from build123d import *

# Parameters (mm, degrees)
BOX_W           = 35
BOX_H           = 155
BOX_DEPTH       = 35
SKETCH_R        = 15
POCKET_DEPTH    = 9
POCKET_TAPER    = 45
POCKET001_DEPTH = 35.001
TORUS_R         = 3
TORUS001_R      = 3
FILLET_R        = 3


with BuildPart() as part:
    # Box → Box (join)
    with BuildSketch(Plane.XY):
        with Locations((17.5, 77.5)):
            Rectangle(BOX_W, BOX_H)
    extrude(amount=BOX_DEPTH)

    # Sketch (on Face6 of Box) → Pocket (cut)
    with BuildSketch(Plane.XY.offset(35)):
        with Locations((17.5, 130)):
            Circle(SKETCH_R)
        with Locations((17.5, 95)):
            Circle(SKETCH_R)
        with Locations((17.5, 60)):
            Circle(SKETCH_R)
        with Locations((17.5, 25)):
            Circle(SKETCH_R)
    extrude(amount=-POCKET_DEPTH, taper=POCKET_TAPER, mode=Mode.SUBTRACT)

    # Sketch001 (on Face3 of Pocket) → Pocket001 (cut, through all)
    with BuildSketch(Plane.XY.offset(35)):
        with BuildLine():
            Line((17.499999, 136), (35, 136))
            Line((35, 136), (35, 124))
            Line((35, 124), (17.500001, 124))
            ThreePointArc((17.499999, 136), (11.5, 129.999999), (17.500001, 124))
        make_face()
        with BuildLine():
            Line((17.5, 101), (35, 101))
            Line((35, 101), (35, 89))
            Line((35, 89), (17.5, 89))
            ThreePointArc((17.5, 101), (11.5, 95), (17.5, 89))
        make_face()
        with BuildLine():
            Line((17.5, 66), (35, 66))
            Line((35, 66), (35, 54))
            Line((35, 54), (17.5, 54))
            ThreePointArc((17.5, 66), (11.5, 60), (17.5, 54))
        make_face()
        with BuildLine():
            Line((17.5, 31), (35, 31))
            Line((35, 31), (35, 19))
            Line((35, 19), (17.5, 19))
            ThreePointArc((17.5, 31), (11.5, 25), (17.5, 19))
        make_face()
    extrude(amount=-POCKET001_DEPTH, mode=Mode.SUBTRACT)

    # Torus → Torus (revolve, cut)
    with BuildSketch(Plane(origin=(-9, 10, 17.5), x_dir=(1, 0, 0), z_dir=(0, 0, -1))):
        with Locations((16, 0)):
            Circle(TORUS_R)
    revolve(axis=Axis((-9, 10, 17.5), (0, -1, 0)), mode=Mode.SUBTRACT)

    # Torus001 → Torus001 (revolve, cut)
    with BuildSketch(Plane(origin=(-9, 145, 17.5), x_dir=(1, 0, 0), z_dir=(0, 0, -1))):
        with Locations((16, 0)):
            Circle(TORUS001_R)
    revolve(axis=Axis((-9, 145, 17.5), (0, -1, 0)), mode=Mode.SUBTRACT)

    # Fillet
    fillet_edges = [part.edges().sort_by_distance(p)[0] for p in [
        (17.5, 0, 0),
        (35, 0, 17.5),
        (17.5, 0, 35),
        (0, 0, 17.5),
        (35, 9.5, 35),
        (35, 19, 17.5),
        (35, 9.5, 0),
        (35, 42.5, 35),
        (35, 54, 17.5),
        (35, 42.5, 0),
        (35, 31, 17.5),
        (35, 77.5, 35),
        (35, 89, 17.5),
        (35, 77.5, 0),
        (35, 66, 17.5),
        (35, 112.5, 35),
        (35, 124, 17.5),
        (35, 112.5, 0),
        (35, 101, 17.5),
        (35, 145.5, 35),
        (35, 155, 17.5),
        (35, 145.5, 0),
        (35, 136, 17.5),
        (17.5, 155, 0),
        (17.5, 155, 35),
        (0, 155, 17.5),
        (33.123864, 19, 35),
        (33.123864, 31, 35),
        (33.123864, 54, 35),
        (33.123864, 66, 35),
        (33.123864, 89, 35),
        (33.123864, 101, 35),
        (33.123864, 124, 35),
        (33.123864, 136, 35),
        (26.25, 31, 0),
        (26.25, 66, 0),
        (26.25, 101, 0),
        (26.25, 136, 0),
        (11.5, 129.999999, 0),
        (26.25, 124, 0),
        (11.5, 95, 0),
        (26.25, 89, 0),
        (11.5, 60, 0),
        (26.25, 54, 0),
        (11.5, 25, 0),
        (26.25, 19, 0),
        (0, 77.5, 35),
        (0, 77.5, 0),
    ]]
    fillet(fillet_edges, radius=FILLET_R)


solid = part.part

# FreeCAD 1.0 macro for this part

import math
import FreeCAD as App
import Part
import Sketcher


def edges_at(feature, points):
    """Names of the edges that pass closest to the given points."""
    edges = feature.Shape.Edges
    near = lambda p: min(range(len(edges)), key=lambda i: edges[i].distToShape(Part.Vertex(*p))[0])
    return sorted({f"Edge{near(p) + 1}" for p in points})


def add_polygon(sketch, points):
    """Adds a closed chain of lines whose ends are joined by coincident constraints."""
    first, n = sketch.GeometryCount, len(points)
    for a, b in zip(points, points[1:] + points[:1]):
        sketch.addGeometry(Part.LineSegment(App.Vector(*a, 0), App.Vector(*b, 0)), False)
    for i in range(n):
        sketch.addConstraint(Sketcher.Constraint("Coincident", first + i, 2, first + (i + 1) % n, 1))

doc = App.newDocument("Part")
body = doc.addObject("PartDesign::Body", "Body")

# Sketch on XY plane
sketch1 = body.newObject("Sketcher::SketchObject", "Sketch")
sketch1.AttachmentSupport = (doc.getObject("XY_Plane"), [""])
sketch1.MapMode = "FlatFace"
add_polygon(sketch1, [(0, 155), (0, 0), (35, 0), (35, 155)])  # lines 0-3
sketch1.addConstraint([
    Sketcher.Constraint("Vertical", 0),
    Sketcher.Constraint("Horizontal", 1),
    Sketcher.Constraint("Vertical", 2),
    Sketcher.Constraint("Horizontal", 3),
    Sketcher.Constraint("Coincident", 0, 2, -1, 1),
    Sketcher.Constraint("DistanceX", 1, 1, 1, 2, 35.0),
    Sketcher.Constraint("DistanceY", 0, 2, 0, 1, 155.0),
])
pad1 = body.newObject("PartDesign::Pad", "Pad")
pad1.Profile = sketch1
pad1.Length = 35

# Sketch on XY plane
sketch2 = body.newObject("Sketcher::SketchObject", "Sketch001")
sketch2.AttachmentSupport = (doc.getObject("XY_Plane"), [""])
sketch2.MapMode = "FlatFace"
sketch2.AttachmentOffset = App.Placement(App.Vector(0, 0, 35), App.Rotation())
sketch2.addGeometry([
    Part.Circle(App.Vector(17.5, 130, 0), App.Vector(0, 0, 1), 15),
    Part.Circle(App.Vector(17.5, 95, 0), App.Vector(0, 0, 1), 15),
    Part.Circle(App.Vector(17.5, 60, 0), App.Vector(0, 0, 1), 15),
    Part.Circle(App.Vector(17.5, 25, 0), App.Vector(0, 0, 1), 15),
], False)
sketch2.addConstraint([
    Sketcher.Constraint("Equal", 0, 1),
    Sketcher.Constraint("Equal", 1, 2),
    Sketcher.Constraint("Equal", 2, 3),
    Sketcher.Constraint("Vertical", 0, 3, 1, 3),
    Sketcher.Constraint("Vertical", 1, 3, 2, 3),
    Sketcher.Constraint("Vertical", 2, 3, 3, 3),
    Sketcher.Constraint("Diameter", 0, 30.0),
    Sketcher.Constraint("DistanceY", -1, 1, 0, 3, 130.0),
    Sketcher.Constraint("DistanceY", -1, 1, 1, 3, 95.0),
    Sketcher.Constraint("DistanceY", -1, 1, 2, 3, 60.0),
    Sketcher.Constraint("DistanceY", -1, 1, 3, 3, 25.0),
    Sketcher.Constraint("DistanceX", -1, 1, 0, 3, 17.5),
])
pocket1 = body.newObject("PartDesign::Pocket", "Pocket")
pocket1.Profile = sketch2
pocket1.Length = 9
pocket1.TaperAngle = -45

# Sketch on XY plane
sketch3 = body.newObject("Sketcher::SketchObject", "Sketch002")
sketch3.AttachmentSupport = (doc.getObject("XY_Plane"), [""])
sketch3.MapMode = "FlatFace"
sketch3.AttachmentOffset = App.Placement(App.Vector(0, 0, 35), App.Rotation())
sketch3.addGeometry([
    Part.LineSegment(App.Vector(35, 136, 0), App.Vector(17.499999, 136, 0)),  # 0
    Part.ArcOfCircle(Part.Circle(App.Vector(17.5, 130, 0), App.Vector(0, 0, 1), 6), math.radians(90.00001), math.radians(270.00001)),  # 1
    Part.LineSegment(App.Vector(17.500001, 124, 0), App.Vector(35, 124, 0)),  # 2
    Part.LineSegment(App.Vector(35, 124, 0), App.Vector(35, 136, 0)),  # 3
    Part.LineSegment(App.Vector(35, 101, 0), App.Vector(17.5, 101, 0)),  # 4
    Part.ArcOfCircle(Part.Circle(App.Vector(17.5, 95, 0), App.Vector(0, 0, 1), 6), math.radians(90), math.radians(270)),  # 5
    Part.LineSegment(App.Vector(17.5, 89, 0), App.Vector(35, 89, 0)),  # 6
    Part.LineSegment(App.Vector(35, 89, 0), App.Vector(35, 101, 0)),  # 7
    Part.LineSegment(App.Vector(35, 66, 0), App.Vector(17.5, 66, 0)),  # 8
    Part.ArcOfCircle(Part.Circle(App.Vector(17.5, 60, 0), App.Vector(0, 0, 1), 6), math.radians(90), math.radians(270)),  # 9
    Part.LineSegment(App.Vector(17.5, 54, 0), App.Vector(35, 54, 0)),  # 10
    Part.LineSegment(App.Vector(35, 54, 0), App.Vector(35, 66, 0)),  # 11
    Part.LineSegment(App.Vector(35, 31, 0), App.Vector(17.5, 31, 0)),  # 12
    Part.ArcOfCircle(Part.Circle(App.Vector(17.5, 25, 0), App.Vector(0, 0, 1), 6), math.radians(90), math.radians(270)),  # 13
    Part.LineSegment(App.Vector(17.5, 19, 0), App.Vector(35, 19, 0)),  # 14
    Part.LineSegment(App.Vector(35, 19, 0), App.Vector(35, 31, 0)),  # 15
], False)
sketch3.addConstraint([
    Sketcher.Constraint("Tangent", 0, 2, 1, 1),
    Sketcher.Constraint("Tangent", 1, 2, 2, 1),
    Sketcher.Constraint("Coincident", 2, 2, 3, 1),
    Sketcher.Constraint("Coincident", 3, 2, 0, 1),
    Sketcher.Constraint("Tangent", 4, 2, 5, 1),
    Sketcher.Constraint("Tangent", 5, 2, 6, 1),
    Sketcher.Constraint("Coincident", 6, 2, 7, 1),
    Sketcher.Constraint("Coincident", 7, 2, 4, 1),
    Sketcher.Constraint("Tangent", 8, 2, 9, 1),
    Sketcher.Constraint("Tangent", 9, 2, 10, 1),
    Sketcher.Constraint("Coincident", 10, 2, 11, 1),
    Sketcher.Constraint("Coincident", 11, 2, 8, 1),
    Sketcher.Constraint("Tangent", 12, 2, 13, 1),
    Sketcher.Constraint("Tangent", 13, 2, 14, 1),
    Sketcher.Constraint("Coincident", 14, 2, 15, 1),
    Sketcher.Constraint("Coincident", 15, 2, 12, 1),
    Sketcher.Constraint("Horizontal", 0),
    Sketcher.Constraint("Horizontal", 2),
    Sketcher.Constraint("Vertical", 3),
    Sketcher.Constraint("Horizontal", 4),
    Sketcher.Constraint("Horizontal", 6),
    Sketcher.Constraint("Vertical", 7),
    Sketcher.Constraint("Horizontal", 8),
    Sketcher.Constraint("Horizontal", 10),
    Sketcher.Constraint("Vertical", 11),
    Sketcher.Constraint("Horizontal", 12),
    Sketcher.Constraint("Horizontal", 14),
    Sketcher.Constraint("Vertical", 15),
    Sketcher.Constraint("Equal", 1, 5),
    Sketcher.Constraint("Equal", 5, 9),
    Sketcher.Constraint("Equal", 9, 13),
    Sketcher.Constraint("Vertical", 1, 3, 5, 3),
    Sketcher.Constraint("Vertical", 5, 3, 9, 3),
    Sketcher.Constraint("Vertical", 9, 3, 13, 3),
    Sketcher.Constraint("Vertical", 3, 2, 6, 2),
    Sketcher.Constraint("Vertical", 7, 2, 10, 2),
    Sketcher.Constraint("Vertical", 11, 2, 14, 2),
    Sketcher.Constraint("Radius", 1, 6.0),
    Sketcher.Constraint("DistanceX", 0, 2, 0, 1, 17.500001),
    Sketcher.Constraint("DistanceY", -1, 1, 1, 3, 130.0),
    Sketcher.Constraint("DistanceY", -1, 1, 5, 3, 95.0),
    Sketcher.Constraint("DistanceY", -1, 1, 9, 3, 60.0),
    Sketcher.Constraint("DistanceY", -1, 1, 13, 3, 25.0),
    Sketcher.Constraint("DistanceX", -1, 1, 2, 2, 35.0),
])
pocket2 = body.newObject("PartDesign::Pocket", "Pocket001")
pocket2.Profile = sketch3
pocket2.Type = "ThroughAll"

# Sketch on XY plane
sketch4 = body.newObject("Sketcher::SketchObject", "Sketch003")
sketch4.AttachmentSupport = (doc.getObject("XY_Plane"), [""])
sketch4.MapMode = "FlatFace"
sketch4.AttachmentOffset = App.Placement(App.Vector(0, 0, 17.5), App.Rotation())
sketch4.addGeometry(Part.Circle(App.Vector(7, 10, 0), App.Vector(0, 0, 1), 3), False)
sketch4.addGeometry(Part.LineSegment(App.Vector(-9, 10, 0), App.Vector(-9, 0, 0)), True)  # axis
sketch4.addConstraint([
    Sketcher.Constraint("Vertical", 1),
    Sketcher.Constraint("PointOnObject", 1, 2, -1),
    Sketcher.Constraint("Horizontal", 0, 3, 1, 1),
    Sketcher.Constraint("Diameter", 0, 6.0),
    Sketcher.Constraint("DistanceY", 1, 2, 1, 1, 10.0),
    Sketcher.Constraint("DistanceX", -1, 1, 0, 3, 7.0),
    Sketcher.Constraint("DistanceX", 1, 1, -1, 1, 9.0),
])
groove = body.newObject("PartDesign::Groove", "Groove")
groove.Profile = sketch4
groove.ReferenceAxis = (sketch4, ["Axis0"])
groove.Angle = 360

# Sketch on XY plane
sketch5 = body.newObject("Sketcher::SketchObject", "Sketch004")
sketch5.AttachmentSupport = (doc.getObject("XY_Plane"), [""])
sketch5.MapMode = "FlatFace"
sketch5.AttachmentOffset = App.Placement(App.Vector(0, 0, 17.5), App.Rotation())
sketch5.addGeometry(Part.Circle(App.Vector(7, 145, 0), App.Vector(0, 0, 1), 3), False)
sketch5.addGeometry(Part.LineSegment(App.Vector(-9, 145, 0), App.Vector(-9, 135, 0)), True)  # axis
sketch5.addConstraint([
    Sketcher.Constraint("Vertical", 1),
    Sketcher.Constraint("Horizontal", 0, 3, 1, 1),
    Sketcher.Constraint("Diameter", 0, 6.0),
    Sketcher.Constraint("DistanceY", 1, 2, 1, 1, 10.0),
    Sketcher.Constraint("DistanceX", -1, 1, 0, 3, 7.0),
    Sketcher.Constraint("DistanceY", -1, 1, 0, 3, 145.0),
    Sketcher.Constraint("DistanceX", 1, 1, -1, 1, 9.0),
])
groove2 = body.newObject("PartDesign::Groove", "Groove001")
groove2.Profile = sketch5
groove2.ReferenceAxis = (sketch5, ["Axis0"])
groove2.Angle = 360
doc.recompute()

fillet = body.newObject("PartDesign::Fillet", "Fillet")
fillet.Base = (groove2, edges_at(groove2, [
    (17.5, 0, 0),
    (35, 0, 17.5),
    (17.5, 0, 35),
    (0, 0, 17.5),
    (35, 9.5, 35),
    (35, 19, 17.5),
    (35, 9.5, 0),
    (35, 42.5, 35),
    (35, 54, 17.5),
    (35, 42.5, 0),
    (35, 31, 17.5),
    (35, 77.5, 35),
    (35, 89, 17.5),
    (35, 77.5, 0),
    (35, 66, 17.5),
    (35, 112.5, 35),
    (35, 124, 17.5),
    (35, 112.5, 0),
    (35, 101, 17.5),
    (35, 145.5, 35),
    (35, 155, 17.5),
    (35, 145.5, 0),
    (35, 136, 17.5),
    (17.5, 155, 0),
    (17.5, 155, 35),
    (0, 155, 17.5),
    (33.124, 19, 35),
    (33.124, 31, 35),
    (33.124, 54, 35),
    (33.124, 66, 35),
    (33.124, 89, 35),
    (33.124, 101, 35),
    (33.124, 124, 35),
    (33.124, 136, 35),
    (26.25, 31, 0),
    (26.25, 66, 0),
    (26.25, 101, 0),
    (26.25, 136, 0),
    (11.5, 130, 0),
    (26.25, 124, 0),
    (11.5, 95, 0),
    (26.25, 89, 0),
    (11.5, 60, 0),
    (26.25, 54, 0),
    (11.5, 25, 0),
    (26.25, 19, 0),
    (0, 77.5, 35),
    (0, 77.5, 0),
]))
fillet.Radius = 3

doc.recompute()
